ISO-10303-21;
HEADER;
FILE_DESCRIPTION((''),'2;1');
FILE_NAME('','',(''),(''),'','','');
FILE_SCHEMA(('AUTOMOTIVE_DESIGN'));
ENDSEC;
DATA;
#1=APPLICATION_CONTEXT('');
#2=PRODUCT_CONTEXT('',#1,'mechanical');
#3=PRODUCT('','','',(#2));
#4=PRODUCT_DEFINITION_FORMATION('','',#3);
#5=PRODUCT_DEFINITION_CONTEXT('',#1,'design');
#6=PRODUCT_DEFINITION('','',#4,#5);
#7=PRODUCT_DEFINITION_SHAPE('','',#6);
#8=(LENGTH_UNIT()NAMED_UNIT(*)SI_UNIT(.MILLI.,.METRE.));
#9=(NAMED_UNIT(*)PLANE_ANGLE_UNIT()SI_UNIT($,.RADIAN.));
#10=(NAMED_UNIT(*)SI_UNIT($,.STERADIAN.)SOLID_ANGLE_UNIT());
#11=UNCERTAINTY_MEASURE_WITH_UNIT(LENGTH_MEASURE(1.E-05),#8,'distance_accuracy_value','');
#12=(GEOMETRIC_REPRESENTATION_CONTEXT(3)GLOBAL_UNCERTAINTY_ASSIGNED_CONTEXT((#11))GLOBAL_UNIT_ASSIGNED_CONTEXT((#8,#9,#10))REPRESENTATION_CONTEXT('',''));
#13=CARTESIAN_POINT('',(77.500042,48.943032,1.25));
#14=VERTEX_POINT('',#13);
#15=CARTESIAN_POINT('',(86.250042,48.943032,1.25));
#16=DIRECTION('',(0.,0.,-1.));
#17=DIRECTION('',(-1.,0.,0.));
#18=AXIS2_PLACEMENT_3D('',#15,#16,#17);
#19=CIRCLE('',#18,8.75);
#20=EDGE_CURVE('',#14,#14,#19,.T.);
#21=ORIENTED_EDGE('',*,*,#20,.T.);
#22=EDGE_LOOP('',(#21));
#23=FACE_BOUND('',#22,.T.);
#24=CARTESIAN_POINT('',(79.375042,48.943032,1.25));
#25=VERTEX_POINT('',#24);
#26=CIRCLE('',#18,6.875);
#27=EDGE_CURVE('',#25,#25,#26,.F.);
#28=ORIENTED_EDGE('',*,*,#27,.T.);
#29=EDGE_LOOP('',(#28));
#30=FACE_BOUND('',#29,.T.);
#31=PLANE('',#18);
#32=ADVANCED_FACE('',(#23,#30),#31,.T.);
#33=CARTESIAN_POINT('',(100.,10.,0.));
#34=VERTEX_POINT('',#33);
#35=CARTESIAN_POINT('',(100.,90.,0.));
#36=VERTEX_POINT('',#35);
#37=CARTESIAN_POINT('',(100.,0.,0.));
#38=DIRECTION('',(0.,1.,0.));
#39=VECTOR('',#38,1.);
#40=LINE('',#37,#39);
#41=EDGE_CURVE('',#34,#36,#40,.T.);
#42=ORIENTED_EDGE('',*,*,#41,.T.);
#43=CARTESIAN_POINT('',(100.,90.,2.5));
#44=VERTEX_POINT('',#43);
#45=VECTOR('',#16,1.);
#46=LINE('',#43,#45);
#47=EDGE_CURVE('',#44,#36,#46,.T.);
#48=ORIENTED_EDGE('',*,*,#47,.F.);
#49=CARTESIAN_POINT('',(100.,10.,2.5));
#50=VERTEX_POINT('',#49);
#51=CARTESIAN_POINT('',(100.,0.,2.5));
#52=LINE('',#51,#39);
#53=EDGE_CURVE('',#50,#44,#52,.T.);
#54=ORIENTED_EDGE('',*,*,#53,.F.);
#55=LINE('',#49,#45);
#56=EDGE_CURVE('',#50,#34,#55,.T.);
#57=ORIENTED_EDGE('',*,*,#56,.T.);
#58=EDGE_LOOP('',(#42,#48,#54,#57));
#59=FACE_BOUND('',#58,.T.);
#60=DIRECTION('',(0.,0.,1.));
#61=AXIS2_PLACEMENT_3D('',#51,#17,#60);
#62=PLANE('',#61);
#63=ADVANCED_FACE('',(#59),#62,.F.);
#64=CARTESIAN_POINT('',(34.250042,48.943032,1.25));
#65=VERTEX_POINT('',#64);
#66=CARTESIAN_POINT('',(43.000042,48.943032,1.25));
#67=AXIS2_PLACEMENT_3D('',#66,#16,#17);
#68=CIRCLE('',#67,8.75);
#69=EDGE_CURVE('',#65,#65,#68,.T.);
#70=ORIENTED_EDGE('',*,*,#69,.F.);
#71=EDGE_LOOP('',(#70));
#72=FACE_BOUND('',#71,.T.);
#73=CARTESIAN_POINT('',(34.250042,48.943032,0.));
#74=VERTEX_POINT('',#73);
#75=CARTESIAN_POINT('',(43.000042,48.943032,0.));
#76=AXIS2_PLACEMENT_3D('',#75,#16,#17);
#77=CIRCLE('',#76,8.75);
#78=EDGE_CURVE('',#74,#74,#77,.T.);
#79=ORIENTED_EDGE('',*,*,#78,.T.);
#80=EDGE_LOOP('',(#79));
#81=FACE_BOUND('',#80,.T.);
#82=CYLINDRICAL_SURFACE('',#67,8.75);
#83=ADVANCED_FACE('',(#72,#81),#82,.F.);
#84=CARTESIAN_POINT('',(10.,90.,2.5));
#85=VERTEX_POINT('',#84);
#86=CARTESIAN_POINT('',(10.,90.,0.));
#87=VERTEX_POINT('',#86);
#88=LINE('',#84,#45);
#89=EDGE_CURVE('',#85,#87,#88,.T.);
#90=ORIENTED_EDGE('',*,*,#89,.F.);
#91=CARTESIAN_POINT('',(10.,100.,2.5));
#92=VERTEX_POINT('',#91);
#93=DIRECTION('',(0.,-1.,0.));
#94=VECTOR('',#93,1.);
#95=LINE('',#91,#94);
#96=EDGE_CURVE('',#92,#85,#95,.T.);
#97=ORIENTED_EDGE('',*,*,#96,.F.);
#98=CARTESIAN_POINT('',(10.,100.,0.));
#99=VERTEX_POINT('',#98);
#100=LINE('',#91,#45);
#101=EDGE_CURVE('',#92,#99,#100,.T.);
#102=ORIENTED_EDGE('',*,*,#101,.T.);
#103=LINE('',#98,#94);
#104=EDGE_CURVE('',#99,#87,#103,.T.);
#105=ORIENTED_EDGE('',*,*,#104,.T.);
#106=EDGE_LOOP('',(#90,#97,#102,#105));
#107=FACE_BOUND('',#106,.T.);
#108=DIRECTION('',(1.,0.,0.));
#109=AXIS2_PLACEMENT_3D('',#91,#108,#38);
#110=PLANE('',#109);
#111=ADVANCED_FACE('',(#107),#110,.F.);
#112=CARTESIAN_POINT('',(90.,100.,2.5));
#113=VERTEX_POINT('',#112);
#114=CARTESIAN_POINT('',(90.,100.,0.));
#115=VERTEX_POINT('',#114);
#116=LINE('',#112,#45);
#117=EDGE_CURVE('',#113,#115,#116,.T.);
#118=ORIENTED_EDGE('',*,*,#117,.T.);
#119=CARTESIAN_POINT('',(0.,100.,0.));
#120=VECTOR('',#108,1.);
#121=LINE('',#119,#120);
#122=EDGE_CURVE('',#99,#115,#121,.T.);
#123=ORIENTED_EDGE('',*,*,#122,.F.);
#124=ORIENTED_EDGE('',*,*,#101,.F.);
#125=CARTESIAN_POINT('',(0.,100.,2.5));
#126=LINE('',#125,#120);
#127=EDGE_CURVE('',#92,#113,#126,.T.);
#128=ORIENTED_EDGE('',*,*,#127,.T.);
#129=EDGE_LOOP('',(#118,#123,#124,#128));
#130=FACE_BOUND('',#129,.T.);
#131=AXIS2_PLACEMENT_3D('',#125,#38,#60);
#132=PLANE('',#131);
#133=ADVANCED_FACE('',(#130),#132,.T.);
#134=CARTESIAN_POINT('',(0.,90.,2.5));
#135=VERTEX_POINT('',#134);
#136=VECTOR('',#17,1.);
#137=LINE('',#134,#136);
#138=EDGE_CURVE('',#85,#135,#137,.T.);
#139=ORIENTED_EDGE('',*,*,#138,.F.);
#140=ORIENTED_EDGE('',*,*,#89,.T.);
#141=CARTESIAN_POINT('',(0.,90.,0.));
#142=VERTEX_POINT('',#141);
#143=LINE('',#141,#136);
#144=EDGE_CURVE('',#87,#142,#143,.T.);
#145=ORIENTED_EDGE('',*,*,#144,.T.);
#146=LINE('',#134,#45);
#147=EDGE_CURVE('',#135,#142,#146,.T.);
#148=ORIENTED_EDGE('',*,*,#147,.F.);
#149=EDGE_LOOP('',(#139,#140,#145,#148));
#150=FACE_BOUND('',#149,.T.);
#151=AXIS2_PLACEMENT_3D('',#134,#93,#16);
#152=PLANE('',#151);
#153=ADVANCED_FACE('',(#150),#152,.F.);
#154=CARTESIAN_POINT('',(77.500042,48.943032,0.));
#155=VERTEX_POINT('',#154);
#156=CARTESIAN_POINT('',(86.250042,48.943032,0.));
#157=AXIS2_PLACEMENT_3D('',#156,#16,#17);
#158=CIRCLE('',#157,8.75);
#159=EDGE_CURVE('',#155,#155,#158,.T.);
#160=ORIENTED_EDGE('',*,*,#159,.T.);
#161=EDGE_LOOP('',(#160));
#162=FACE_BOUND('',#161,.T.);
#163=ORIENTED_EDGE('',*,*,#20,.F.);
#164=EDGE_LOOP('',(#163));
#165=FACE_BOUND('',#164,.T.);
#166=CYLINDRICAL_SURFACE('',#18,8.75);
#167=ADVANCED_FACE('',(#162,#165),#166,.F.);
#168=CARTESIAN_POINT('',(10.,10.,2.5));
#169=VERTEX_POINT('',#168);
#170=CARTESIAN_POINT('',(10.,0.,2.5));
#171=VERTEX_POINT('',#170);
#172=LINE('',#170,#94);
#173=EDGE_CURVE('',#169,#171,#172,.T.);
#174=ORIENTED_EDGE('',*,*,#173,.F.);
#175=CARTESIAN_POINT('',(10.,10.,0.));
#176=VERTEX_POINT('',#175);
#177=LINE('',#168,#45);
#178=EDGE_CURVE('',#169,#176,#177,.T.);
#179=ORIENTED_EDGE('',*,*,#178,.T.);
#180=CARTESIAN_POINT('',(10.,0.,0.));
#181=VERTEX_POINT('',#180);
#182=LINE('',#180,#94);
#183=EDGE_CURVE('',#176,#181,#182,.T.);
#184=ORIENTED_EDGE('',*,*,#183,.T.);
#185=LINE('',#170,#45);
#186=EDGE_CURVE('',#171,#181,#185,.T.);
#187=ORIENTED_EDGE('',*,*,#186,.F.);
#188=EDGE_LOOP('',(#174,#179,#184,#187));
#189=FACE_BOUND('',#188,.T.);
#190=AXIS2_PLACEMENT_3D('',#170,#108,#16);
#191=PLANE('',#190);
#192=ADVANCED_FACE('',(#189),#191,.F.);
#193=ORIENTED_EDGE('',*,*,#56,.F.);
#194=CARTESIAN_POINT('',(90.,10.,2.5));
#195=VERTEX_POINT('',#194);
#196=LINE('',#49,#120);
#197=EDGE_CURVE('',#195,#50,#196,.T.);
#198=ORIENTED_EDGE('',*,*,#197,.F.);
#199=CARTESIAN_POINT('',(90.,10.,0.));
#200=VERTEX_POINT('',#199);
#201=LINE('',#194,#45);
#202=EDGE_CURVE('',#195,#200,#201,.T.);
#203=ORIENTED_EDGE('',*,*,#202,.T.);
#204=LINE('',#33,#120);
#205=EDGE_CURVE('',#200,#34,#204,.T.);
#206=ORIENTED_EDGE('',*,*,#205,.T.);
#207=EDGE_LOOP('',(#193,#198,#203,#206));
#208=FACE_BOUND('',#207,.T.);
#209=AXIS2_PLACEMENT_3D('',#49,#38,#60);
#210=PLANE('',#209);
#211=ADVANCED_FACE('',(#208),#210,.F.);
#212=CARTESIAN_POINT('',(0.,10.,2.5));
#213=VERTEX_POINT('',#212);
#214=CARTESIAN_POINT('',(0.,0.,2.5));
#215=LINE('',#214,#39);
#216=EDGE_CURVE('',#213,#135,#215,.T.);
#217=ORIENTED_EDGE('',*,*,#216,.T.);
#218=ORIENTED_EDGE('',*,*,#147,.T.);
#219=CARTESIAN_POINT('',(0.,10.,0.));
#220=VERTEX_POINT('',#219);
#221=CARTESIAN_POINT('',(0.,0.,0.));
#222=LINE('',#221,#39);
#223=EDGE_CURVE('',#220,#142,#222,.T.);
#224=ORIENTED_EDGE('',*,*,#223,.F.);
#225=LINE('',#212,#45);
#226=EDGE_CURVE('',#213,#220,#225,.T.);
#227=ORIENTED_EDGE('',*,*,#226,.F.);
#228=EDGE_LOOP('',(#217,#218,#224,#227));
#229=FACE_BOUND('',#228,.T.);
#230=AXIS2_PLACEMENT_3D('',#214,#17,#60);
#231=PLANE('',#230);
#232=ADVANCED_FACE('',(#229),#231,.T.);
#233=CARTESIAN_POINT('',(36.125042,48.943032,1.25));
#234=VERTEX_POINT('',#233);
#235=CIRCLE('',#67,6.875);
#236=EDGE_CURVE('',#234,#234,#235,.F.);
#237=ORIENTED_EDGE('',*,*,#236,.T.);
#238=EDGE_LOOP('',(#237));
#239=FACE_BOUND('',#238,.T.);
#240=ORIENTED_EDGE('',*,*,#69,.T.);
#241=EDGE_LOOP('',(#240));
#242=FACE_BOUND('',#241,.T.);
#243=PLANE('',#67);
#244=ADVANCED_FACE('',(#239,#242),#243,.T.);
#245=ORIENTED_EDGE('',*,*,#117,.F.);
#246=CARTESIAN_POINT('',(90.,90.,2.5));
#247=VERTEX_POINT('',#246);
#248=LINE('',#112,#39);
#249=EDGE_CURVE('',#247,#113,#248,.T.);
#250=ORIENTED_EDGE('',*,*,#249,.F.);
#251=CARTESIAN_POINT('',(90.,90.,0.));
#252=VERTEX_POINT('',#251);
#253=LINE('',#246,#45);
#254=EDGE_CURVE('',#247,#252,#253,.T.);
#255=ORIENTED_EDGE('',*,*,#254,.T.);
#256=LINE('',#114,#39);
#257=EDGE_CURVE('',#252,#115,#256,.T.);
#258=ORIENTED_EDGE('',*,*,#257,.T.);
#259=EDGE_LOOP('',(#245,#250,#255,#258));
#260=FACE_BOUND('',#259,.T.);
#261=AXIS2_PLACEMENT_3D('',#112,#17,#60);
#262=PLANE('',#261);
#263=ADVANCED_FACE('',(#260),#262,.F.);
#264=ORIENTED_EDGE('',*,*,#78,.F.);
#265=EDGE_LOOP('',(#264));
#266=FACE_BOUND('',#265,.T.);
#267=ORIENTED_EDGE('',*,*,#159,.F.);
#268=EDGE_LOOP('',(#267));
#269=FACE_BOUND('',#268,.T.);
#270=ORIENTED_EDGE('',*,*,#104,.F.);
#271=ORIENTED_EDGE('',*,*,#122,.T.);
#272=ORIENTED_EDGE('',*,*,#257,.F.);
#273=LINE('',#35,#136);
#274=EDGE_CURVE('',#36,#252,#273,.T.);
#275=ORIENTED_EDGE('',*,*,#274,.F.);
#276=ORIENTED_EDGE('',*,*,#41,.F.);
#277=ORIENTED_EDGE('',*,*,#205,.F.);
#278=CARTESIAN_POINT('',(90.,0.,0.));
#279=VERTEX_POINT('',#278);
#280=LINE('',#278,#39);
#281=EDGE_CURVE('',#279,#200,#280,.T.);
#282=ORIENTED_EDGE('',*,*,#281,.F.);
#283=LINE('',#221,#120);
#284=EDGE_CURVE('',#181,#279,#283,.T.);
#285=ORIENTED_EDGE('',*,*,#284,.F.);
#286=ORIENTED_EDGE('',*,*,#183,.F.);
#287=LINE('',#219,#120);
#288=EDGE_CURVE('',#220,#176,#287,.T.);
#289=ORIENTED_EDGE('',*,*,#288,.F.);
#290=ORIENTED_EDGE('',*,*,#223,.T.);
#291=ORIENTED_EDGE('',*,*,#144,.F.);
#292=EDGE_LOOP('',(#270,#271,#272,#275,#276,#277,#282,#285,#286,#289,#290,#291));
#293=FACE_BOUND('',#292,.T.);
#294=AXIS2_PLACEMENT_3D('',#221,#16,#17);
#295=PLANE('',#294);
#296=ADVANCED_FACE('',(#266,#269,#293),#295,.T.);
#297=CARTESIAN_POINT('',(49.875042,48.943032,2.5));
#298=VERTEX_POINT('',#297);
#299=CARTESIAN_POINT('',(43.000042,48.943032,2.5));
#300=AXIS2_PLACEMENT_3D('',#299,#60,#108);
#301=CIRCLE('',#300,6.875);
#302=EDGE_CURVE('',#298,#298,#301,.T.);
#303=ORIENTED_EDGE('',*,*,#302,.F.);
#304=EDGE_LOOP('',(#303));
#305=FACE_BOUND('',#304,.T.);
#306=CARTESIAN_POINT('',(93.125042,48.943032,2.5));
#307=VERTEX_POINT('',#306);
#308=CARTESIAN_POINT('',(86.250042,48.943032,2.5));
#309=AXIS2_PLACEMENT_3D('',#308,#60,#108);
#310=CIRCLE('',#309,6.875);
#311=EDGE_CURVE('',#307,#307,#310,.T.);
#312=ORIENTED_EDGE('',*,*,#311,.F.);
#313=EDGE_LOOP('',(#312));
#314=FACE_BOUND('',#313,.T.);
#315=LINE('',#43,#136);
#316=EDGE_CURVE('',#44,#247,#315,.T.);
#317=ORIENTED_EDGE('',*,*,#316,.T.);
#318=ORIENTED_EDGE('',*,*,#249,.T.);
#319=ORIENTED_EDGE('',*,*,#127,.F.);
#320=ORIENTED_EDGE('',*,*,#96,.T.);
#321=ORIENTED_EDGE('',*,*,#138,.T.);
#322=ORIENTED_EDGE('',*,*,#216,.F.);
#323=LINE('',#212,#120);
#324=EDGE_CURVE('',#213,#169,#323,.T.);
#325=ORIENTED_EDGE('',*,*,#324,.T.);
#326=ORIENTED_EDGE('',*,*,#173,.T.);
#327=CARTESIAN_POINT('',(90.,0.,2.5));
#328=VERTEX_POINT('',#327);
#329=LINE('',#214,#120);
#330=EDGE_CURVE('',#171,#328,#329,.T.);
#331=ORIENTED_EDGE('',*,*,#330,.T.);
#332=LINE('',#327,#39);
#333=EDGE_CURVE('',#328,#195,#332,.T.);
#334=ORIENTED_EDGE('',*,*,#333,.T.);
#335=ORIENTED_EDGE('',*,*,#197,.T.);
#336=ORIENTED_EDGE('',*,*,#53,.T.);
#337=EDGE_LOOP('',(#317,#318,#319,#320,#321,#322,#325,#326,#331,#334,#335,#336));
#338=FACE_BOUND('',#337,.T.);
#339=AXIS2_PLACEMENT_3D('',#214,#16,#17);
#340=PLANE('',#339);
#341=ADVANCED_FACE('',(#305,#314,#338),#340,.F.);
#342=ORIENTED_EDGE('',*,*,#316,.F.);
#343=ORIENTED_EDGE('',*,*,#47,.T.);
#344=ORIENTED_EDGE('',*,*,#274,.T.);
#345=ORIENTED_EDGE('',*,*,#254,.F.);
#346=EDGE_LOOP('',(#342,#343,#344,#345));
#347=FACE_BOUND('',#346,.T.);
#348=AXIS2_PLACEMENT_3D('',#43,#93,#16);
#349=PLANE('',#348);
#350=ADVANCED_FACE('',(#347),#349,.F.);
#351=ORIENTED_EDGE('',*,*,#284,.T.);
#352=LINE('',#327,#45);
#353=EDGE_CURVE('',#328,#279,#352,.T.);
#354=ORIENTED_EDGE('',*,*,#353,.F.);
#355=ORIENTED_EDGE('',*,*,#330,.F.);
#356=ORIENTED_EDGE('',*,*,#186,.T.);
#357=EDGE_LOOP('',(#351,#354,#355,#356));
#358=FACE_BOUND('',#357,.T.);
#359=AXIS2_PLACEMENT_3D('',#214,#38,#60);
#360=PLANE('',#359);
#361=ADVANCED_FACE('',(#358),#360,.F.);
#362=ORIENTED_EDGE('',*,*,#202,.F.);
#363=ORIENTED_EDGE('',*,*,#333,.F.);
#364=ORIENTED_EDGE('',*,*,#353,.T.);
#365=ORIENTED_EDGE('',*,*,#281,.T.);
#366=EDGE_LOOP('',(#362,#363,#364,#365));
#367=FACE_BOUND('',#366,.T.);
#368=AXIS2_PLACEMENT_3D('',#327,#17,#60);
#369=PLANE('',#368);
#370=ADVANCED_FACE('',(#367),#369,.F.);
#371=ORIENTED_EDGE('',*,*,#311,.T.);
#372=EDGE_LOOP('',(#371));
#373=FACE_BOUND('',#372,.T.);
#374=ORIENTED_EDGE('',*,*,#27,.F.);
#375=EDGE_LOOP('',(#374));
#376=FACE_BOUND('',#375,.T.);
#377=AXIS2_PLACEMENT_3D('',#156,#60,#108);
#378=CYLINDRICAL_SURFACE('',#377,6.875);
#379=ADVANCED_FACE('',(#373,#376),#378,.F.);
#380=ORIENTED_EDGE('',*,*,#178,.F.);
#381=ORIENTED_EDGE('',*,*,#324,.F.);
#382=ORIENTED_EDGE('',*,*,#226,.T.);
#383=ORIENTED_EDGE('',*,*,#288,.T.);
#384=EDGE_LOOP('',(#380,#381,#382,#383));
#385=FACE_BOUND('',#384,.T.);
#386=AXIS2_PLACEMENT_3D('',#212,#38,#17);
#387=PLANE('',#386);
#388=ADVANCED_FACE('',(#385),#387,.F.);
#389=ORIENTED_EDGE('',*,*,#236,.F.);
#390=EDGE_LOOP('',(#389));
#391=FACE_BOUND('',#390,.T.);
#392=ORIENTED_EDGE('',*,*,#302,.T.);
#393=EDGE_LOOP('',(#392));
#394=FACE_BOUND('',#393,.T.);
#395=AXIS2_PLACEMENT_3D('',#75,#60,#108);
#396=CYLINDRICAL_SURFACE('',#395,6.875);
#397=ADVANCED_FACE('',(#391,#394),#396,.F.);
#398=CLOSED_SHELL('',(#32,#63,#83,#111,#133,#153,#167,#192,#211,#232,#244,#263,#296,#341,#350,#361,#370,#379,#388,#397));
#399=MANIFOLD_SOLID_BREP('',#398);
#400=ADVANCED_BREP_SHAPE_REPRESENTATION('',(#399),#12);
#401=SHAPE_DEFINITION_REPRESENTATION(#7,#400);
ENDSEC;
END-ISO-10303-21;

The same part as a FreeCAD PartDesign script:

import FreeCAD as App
import Part
import Sketcher

V = App.Vector
Q = App.Units.Quantity


def add_polygon(sketch, points):
    """Adds a closed chain of lines whose ends are joined by coincident constraints."""
    first, n = sketch.GeometryCount, len(points)
    for a, b in zip(points, points[1:] + points[:1]):
        sketch.addGeometry(Part.LineSegment(App.Vector(*a, 0), App.Vector(*b, 0)), False)
    for i in range(n):
        sketch.addConstraint(Sketcher.Constraint("Coincident", first + i, 2, first + (i + 1) % n, 1))

doc = App.newDocument("Part")
params = doc.addObject("Spreadsheet::Sheet", "Params")
for row, (alias, value) in enumerate([
    ("sketch1_width", "100 mm"),
    ("pad1_length", "2.5 mm"),
    ("sketch2_diameter", "13.75 mm"),
    ("sketch3_diameter", "17.5 mm"),
    ("pocket2_length", "1.25 mm"),
    ("sketch4_width", "10 mm"),
], start=1):
    params.set(f"A{row}", alias)
    params.set(f"B{row}", "=" + value)
    params.setAlias(f"B{row}", alias)

body = doc.addObject("PartDesign::Body", "Body")

sketch1 = body.newObject("Sketcher::SketchObject", "Sketch")
sketch1.AttachmentSupport = (doc.getObject("XY_Plane"), [""])
sketch1.MapMode = "FlatFace"
add_polygon(sketch1, [(0, 100), (0, 0), (100, 0), (100, 100)])
sketch1.addConstraint([
    Sketcher.Constraint("Vertical", 0),
    Sketcher.Constraint("Horizontal", 1),
    Sketcher.Constraint("Vertical", 2),
    Sketcher.Constraint("Horizontal", 3),
    Sketcher.Constraint("Coincident", 0, 2, -1, 1),
    Sketcher.Constraint("Equal", 3, 0),
    Sketcher.Constraint("DistanceX", 1, 1, 1, 2, Q("100 mm")),
])
sketch1.setExpression("Constraints[10]", "Params.sketch1_width")
pad1 = body.newObject("PartDesign::Pad", "Pad")
pad1.Profile = sketch1
pad1.setExpression("Length", "Params.pad1_length")

sketch2 = body.newObject("Sketcher::SketchObject", "Sketch001")
sketch2.AttachmentSupport = (doc.getObject("XY_Plane"), [""])
sketch2.MapMode = "FlatFace"
sketch2.AttachmentOffset = App.Placement(V(0, 0, 2.5), App.Rotation())
sketch2.addGeometry([
    Part.Circle(V(86.250042, 48.943032, 0), V(0, 0, 1), 6.875),
    Part.Circle(V(43.000042, 48.943032, 0), V(0, 0, 1), 6.875),
], False)
sketch2.addConstraint([
    Sketcher.Constraint("Equal", 0, 1),
    Sketcher.Constraint("Horizontal", 0, 3, 1, 3),
    Sketcher.Constraint("Diameter", 0, Q("13.75 mm")),
    Sketcher.Constraint("DistanceX", 1, 3, 0, 3, Q("43.25 mm")),
    Sketcher.Constraint("DistanceY", -1, 1, 0, 3, Q("48.943032 mm")),
    Sketcher.Constraint("DistanceX", -1, 1, 0, 3, Q("86.250042 mm")),
])
sketch2.setExpression("Constraints[2]", "Params.sketch2_diameter")
pocket1 = body.newObject("PartDesign::Pocket", "Pocket")
pocket1.Profile = sketch2
pocket1.Type = "ThroughAll"

sketch3 = body.newObject("Sketcher::SketchObject", "Sketch002")
sketch3.AttachmentSupport = (doc.getObject("XY_Plane"), [""])
sketch3.MapMode = "FlatFace"
sketch3.addGeometry([
    Part.Circle(V(86.250042, 48.943032, 0), V(0, 0, 1), 8.75),
    Part.Circle(V(43.000042, 48.943032, 0), V(0, 0, 1), 8.75),
], False)
sketch3.addConstraint([
    Sketcher.Constraint("Equal", 0, 1),
    Sketcher.Constraint("Horizontal", 0, 3, 1, 3),
    Sketcher.Constraint("Diameter", 0, Q("17.5 mm")),
    Sketcher.Constraint("DistanceX", 1, 3, 0, 3, Q("43.25 mm")),
    Sketcher.Constraint("DistanceY", -1, 1, 0, 3, Q("48.943032 mm")),
    Sketcher.Constraint("DistanceX", -1, 1, 0, 3, Q("86.250042 mm")),
])
sketch3.setExpression("Constraints[2]", "Params.sketch3_diameter")
pocket2 = body.newObject("PartDesign::Pocket", "Pocket001")
pocket2.Profile = sketch3
pocket2.setExpression("Length", "Params.pocket2_length")
pocket2.Reversed = True

sketch4 = body.newObject("Sketcher::SketchObject", "Sketch003")
sketch4.AttachmentSupport = (doc.getObject("XY_Plane"), [""])
sketch4.MapMode = "FlatFace"
add_polygon(sketch4, [(100, 100), (100, 90), (90, 90), (90, 100)])
add_polygon(sketch4, [(100, 10), (100, 0), (90, 0), (90, 10)])
add_polygon(sketch4, [(10, 100), (10, 90), (0, 90), (0, 100)])
add_polygon(sketch4, [(10, 10), (10, 0), (0, 0), (0, 10)])
sketch4.addConstraint([
    Sketcher.Constraint("Vertical", 0),
    Sketcher.Constraint("Horizontal", 1),
    Sketcher.Constraint("Vertical", 2),
    Sketcher.Constraint("Horizontal", 3),
    Sketcher.Constraint("Vertical", 4),
    Sketcher.Constraint("Horizontal", 5),
    Sketcher.Constraint("Vertical", 6),
    Sketcher.Constraint("Horizontal", 7),
    Sketcher.Constraint("Vertical", 8),
    Sketcher.Constraint("Horizontal", 9),
    Sketcher.Constraint("Vertical", 10),
    Sketcher.Constraint("Horizontal", 11),
    Sketcher.Constraint("Vertical", 12),
    Sketcher.Constraint("Horizontal", 13),
    Sketcher.Constraint("Vertical", 14),
    Sketcher.Constraint("Horizontal", 15),
    Sketcher.Constraint("Coincident", 13, 2, -1, 1),
    Sketcher.Constraint("PointOnObject", 4, 2, -1),
    Sketcher.Constraint("PointOnObject", 9, 2, -2),
    Sketcher.Constraint("Horizontal", 1, 2, 8, 2),
    Sketcher.Constraint("Horizontal", 3, 2, 10, 2),
    Sketcher.Constraint("Horizontal", 7, 2, 14, 2),
    Sketcher.Constraint("Vertical", 3, 2, 4, 2),
    Sketcher.Constraint("Vertical", 2, 2, 5, 2),
    Sketcher.Constraint("Vertical", 11, 2, 12, 2),
    Sketcher.Constraint("Equal", 7, 9),
    Sketcher.Constraint("Equal", 15, 0),
    Sketcher.Constraint("Equal", 2, 4),
    Sketcher.Constraint("DistanceX", 1, 2, 1, 1, Q("10 mm")),
    Sketcher.Constraint("DistanceX", -1, 1, 0, 2, Q("100 mm")),
    Sketcher.Constraint("DistanceY", -1, 1, 0, 2, Q("90 mm")),
])
sketch4.setExpression("Constraints[44]", "Params.sketch4_width")
pocket3 = body.newObject("PartDesign::Pocket", "Pocket002")
pocket3.Profile = sketch4
pocket3.Type = "ThroughAll"
pocket3.Reversed = True

doc.recompute()
